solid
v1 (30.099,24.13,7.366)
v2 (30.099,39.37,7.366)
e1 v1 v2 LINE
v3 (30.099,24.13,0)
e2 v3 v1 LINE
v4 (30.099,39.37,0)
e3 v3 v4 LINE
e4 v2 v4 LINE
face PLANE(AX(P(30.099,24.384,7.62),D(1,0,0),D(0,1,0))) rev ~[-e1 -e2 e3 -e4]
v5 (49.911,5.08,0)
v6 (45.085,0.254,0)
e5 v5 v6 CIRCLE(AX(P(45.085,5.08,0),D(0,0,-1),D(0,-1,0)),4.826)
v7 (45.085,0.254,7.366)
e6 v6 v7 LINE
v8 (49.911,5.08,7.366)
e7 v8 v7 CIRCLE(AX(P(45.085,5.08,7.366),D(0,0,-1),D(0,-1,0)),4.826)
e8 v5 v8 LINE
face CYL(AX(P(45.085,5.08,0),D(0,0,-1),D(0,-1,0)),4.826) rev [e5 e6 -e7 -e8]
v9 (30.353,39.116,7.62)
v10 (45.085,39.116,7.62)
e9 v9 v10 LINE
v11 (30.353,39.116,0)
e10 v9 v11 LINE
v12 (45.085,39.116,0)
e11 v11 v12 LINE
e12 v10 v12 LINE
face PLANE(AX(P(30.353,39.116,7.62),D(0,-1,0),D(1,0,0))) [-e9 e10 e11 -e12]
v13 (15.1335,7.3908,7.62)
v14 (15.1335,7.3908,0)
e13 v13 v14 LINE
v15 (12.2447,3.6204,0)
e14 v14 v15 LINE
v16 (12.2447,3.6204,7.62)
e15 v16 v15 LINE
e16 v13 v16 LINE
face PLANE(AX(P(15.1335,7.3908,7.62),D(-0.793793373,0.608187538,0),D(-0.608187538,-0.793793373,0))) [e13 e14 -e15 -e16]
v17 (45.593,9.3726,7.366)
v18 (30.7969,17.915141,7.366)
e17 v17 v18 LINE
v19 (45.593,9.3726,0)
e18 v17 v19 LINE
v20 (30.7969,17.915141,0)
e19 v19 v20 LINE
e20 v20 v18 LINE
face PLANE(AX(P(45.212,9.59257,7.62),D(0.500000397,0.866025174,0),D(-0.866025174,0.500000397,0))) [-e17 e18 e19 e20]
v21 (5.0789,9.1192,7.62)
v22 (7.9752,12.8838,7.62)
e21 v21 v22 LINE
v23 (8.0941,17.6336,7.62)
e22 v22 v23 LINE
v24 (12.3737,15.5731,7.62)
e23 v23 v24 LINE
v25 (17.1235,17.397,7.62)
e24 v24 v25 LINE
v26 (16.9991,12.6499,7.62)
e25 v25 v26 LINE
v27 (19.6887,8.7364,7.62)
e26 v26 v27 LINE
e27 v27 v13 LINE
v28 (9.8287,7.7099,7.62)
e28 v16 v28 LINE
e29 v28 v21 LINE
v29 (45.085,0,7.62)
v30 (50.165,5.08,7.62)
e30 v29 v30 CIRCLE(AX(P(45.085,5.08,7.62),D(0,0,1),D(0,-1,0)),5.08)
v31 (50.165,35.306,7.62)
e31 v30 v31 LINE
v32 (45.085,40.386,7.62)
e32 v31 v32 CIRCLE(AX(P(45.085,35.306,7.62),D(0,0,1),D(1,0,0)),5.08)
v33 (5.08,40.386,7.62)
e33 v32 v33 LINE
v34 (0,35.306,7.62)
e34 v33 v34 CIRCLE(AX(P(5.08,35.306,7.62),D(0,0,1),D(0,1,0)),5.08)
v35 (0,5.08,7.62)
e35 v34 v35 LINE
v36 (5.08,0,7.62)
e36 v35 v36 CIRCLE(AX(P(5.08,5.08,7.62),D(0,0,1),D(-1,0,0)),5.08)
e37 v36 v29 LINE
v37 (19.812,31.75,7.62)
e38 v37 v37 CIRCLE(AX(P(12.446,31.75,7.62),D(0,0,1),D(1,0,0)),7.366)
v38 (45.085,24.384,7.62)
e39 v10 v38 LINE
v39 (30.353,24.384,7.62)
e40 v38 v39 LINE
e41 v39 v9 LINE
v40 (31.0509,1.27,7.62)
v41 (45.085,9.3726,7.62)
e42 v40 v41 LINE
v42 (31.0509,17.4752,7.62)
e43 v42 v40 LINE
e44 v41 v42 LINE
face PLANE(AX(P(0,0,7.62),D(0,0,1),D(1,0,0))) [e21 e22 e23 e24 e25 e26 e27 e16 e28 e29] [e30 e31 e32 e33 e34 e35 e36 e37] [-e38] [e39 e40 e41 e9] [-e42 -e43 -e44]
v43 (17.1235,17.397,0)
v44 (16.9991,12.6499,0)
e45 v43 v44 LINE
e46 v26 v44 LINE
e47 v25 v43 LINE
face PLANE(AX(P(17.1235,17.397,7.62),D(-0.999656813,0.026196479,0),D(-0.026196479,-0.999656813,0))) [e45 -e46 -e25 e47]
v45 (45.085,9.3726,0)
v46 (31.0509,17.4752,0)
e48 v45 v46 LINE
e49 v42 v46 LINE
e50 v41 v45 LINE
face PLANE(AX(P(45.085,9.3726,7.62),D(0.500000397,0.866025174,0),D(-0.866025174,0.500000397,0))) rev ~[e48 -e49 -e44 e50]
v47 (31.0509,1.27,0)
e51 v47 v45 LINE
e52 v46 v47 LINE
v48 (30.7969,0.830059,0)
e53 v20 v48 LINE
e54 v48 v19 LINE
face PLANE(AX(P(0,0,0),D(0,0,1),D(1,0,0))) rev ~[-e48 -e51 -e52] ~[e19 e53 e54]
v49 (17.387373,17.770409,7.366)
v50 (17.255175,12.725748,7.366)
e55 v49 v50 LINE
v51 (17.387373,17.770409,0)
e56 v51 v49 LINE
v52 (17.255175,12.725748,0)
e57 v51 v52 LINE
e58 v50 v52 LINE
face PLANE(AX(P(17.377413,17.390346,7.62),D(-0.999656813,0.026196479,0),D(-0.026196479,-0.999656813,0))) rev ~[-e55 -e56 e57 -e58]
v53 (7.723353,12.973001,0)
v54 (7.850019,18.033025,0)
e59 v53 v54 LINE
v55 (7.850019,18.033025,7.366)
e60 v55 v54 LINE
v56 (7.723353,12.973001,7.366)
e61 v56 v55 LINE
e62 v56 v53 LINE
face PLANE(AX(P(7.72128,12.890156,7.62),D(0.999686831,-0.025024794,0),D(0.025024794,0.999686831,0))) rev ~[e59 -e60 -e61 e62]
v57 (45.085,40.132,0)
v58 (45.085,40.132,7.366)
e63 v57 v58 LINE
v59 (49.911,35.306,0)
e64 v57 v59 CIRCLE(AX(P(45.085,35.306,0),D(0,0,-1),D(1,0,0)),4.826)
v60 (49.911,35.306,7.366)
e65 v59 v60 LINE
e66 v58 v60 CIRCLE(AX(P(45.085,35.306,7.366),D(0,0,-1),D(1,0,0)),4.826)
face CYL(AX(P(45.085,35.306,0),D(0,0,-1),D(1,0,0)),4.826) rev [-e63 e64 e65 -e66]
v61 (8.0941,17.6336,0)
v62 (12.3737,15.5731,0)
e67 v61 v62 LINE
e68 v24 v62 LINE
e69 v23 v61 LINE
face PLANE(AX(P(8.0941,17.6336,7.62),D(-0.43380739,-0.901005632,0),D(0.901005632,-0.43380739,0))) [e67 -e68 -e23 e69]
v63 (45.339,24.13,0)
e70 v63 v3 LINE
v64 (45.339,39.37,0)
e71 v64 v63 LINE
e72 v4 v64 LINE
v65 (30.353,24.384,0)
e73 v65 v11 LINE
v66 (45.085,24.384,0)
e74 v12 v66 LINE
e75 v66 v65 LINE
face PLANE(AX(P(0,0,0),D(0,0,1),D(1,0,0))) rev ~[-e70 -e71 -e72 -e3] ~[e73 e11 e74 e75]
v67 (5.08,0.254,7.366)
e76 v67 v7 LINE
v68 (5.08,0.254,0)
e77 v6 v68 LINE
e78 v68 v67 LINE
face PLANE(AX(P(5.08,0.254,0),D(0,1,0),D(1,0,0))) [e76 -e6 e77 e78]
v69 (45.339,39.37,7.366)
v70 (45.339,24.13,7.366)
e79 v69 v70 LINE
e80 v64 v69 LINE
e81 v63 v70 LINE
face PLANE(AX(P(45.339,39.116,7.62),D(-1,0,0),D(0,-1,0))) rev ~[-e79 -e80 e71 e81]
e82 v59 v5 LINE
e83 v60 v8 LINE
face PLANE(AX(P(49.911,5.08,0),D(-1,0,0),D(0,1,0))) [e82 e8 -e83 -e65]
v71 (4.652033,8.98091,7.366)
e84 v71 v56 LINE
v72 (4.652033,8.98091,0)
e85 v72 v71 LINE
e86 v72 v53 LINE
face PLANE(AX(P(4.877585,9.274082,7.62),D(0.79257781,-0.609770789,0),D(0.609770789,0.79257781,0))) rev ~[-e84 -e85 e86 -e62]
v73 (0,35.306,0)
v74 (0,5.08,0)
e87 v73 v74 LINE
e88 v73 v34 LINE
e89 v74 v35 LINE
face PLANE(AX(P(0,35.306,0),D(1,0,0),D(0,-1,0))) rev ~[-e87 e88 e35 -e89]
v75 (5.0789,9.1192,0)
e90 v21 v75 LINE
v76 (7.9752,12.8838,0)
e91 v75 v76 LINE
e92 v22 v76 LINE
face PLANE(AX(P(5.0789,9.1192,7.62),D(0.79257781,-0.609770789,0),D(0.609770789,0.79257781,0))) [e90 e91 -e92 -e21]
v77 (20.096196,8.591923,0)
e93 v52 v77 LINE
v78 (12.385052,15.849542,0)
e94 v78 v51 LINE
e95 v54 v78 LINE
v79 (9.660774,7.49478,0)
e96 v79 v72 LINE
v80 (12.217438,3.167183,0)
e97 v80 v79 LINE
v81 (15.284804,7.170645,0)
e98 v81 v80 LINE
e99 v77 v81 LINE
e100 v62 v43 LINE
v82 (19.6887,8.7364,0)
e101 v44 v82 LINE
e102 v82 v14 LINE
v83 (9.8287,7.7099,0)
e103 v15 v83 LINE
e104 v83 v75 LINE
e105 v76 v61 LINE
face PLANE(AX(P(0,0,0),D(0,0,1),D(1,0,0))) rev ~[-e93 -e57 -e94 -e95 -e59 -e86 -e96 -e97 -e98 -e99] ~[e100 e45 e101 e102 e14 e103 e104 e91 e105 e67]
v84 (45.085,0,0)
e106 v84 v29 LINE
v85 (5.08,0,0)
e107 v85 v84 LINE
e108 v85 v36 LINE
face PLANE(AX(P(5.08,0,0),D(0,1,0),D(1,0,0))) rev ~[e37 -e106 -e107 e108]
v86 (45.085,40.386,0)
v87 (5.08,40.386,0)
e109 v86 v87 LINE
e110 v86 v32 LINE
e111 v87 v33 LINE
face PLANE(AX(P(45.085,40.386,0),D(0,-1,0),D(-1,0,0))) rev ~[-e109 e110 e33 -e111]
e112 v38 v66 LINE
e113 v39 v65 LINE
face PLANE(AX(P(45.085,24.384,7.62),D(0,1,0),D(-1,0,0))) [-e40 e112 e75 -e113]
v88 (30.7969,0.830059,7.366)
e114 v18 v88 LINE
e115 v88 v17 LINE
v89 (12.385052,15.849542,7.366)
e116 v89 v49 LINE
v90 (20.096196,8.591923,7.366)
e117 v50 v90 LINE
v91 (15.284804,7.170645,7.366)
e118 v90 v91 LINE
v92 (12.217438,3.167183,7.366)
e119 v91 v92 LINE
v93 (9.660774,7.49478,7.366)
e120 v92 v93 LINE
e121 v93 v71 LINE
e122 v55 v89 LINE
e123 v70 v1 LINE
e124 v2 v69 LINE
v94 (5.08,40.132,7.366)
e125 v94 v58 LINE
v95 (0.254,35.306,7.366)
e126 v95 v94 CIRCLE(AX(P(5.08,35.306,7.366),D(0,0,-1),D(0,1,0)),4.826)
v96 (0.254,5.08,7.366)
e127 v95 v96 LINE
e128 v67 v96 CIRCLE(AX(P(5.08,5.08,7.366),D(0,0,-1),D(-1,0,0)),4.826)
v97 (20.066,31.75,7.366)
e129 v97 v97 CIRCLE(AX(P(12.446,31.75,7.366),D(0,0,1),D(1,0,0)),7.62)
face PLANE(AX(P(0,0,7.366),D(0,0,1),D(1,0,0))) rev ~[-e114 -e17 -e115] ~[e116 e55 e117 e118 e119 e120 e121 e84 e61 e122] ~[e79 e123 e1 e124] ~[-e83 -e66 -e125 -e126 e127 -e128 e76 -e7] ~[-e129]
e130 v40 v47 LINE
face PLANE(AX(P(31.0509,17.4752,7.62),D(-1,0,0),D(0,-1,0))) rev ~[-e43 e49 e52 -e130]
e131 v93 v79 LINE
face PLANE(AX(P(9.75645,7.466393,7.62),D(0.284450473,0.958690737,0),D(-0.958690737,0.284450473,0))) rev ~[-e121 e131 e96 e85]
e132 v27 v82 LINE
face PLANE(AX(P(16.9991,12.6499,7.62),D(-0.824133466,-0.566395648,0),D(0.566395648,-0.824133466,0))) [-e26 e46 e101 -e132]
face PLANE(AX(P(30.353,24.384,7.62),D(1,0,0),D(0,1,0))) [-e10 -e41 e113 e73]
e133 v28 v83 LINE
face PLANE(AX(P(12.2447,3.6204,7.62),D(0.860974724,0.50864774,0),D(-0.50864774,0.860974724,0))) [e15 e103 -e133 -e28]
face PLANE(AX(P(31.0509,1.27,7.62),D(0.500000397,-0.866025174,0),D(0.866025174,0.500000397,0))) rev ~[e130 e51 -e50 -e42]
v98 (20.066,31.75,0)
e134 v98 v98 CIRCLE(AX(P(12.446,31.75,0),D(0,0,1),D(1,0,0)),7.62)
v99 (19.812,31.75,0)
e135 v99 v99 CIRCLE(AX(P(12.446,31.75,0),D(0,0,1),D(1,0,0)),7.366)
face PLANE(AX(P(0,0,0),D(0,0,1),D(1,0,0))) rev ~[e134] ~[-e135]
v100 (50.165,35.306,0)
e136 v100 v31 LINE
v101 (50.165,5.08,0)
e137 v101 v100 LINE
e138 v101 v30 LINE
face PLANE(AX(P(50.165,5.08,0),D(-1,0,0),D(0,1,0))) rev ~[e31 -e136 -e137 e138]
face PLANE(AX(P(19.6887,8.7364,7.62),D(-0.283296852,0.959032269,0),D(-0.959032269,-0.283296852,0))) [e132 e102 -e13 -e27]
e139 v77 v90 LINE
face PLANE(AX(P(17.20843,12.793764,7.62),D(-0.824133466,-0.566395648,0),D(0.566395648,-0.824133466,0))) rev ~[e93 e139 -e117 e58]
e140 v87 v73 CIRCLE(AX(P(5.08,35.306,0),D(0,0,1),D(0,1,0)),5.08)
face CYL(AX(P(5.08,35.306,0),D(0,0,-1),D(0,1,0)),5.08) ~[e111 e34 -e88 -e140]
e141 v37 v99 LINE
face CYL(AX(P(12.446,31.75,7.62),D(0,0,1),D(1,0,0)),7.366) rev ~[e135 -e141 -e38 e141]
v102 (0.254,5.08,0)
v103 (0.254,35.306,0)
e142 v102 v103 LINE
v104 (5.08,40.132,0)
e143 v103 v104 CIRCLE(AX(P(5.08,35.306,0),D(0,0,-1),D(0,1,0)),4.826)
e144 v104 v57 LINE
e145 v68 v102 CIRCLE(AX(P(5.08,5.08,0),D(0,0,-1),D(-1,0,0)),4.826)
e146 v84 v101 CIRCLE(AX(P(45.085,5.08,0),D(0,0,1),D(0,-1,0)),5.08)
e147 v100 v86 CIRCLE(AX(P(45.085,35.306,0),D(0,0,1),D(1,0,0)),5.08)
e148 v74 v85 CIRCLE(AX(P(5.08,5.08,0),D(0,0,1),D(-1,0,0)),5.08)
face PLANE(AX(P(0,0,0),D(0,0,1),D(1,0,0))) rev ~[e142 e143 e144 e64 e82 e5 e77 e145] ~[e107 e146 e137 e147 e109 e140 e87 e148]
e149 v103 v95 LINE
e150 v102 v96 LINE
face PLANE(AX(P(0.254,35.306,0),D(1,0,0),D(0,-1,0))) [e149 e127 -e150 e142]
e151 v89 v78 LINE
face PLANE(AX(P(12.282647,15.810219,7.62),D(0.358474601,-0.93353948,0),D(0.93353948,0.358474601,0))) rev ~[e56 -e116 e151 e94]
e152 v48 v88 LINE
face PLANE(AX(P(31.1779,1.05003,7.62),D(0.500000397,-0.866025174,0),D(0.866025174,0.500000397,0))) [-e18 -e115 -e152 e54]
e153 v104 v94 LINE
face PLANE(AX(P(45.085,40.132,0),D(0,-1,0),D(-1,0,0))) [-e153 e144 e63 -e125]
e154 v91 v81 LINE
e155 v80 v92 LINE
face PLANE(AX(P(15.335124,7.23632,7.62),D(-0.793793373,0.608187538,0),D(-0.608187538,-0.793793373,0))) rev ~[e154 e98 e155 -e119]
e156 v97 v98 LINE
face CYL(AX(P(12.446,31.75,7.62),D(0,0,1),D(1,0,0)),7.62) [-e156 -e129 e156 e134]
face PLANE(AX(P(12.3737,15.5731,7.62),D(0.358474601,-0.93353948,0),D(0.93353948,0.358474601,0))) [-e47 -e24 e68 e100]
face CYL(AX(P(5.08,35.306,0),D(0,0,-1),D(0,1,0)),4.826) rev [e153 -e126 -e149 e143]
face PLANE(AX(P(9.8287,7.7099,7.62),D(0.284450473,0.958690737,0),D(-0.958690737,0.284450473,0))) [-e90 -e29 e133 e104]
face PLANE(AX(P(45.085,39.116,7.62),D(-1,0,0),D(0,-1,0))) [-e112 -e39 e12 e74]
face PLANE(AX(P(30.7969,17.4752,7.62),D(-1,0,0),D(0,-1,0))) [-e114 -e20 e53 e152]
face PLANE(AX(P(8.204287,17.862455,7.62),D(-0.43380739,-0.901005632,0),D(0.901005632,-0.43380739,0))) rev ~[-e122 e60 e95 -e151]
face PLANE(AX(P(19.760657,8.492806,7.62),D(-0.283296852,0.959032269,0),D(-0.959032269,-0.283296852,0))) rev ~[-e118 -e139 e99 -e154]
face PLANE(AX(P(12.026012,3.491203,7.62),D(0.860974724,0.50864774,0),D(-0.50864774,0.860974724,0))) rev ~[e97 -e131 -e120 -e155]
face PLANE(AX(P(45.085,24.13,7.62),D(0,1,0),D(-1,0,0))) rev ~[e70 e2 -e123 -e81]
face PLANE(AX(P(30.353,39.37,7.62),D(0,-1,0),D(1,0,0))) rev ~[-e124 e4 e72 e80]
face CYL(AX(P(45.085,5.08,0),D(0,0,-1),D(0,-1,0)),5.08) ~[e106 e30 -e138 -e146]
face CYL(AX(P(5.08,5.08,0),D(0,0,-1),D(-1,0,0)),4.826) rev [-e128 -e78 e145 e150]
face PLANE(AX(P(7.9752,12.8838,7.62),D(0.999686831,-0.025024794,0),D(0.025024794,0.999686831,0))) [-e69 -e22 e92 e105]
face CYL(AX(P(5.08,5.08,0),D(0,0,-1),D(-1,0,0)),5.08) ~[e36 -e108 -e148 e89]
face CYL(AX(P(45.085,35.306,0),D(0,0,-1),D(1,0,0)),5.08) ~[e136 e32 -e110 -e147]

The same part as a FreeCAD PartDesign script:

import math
import FreeCAD as App
import Part
import Sketcher
Q = App.Units.Quantity


def faces_at(feature, points):
    """Names of the faces that lie closest to the given points."""
    faces = feature.Shape.Faces
    near = lambda p: min(range(len(faces)), key=lambda i: faces[i].distToShape(Part.Vertex(*p))[0])
    return sorted({f"Face{near(p) + 1}" for p in points})

doc = App.newDocument("Part")
body = doc.addObject("PartDesign::Body", "Body")

# Sketch on XY plane
sketch1 = body.newObject("Sketcher::SketchObject", "Sketch")
sketch1.AttachmentSupport = (doc.getObject("XY_Plane"), [""])
sketch1.MapMode = "FlatFace"
sketch1.addGeometry([
    Part.ArcOfCircle(Part.Circle(App.Vector(5, 5, 0), App.Vector(0, 0, 1), 5), math.radians(180), math.radians(270)),  # 0
    Part.LineSegment(App.Vector(5, 0, 0), App.Vector(45, 0, 0)),  # 1
    Part.ArcOfCircle(Part.Circle(App.Vector(45, 5, 0), App.Vector(0, 0, 1), 5), math.radians(-90), math.radians(0)),  # 2
    Part.LineSegment(App.Vector(50, 5, 0), App.Vector(50, 35, 0)),  # 3
    Part.ArcOfCircle(Part.Circle(App.Vector(45, 35, 0), App.Vector(0, 0, 1), 5), math.radians(0), math.radians(90)),  # 4
    Part.LineSegment(App.Vector(45, 40, 0), App.Vector(5, 40, 0)),  # 5
    Part.ArcOfCircle(Part.Circle(App.Vector(5, 35, 0), App.Vector(0, 0, 1), 5), math.radians(90), math.radians(180)),  # 6
    Part.LineSegment(App.Vector(0, 35, 0), App.Vector(0, 5, 0)),  # 7
], False)
sketch1.addConstraint([
    Sketcher.Constraint("Tangent", 0, 2, 1, 1),
    Sketcher.Constraint("Tangent", 1, 2, 2, 1),
    Sketcher.Constraint("Tangent", 2, 2, 3, 1),
    Sketcher.Constraint("Tangent", 3, 2, 4, 1),
    Sketcher.Constraint("Tangent", 4, 2, 5, 1),
    Sketcher.Constraint("Tangent", 5, 2, 6, 1),
    Sketcher.Constraint("Tangent", 6, 2, 7, 1),
    Sketcher.Constraint("Tangent", 7, 2, 0, 1),
    Sketcher.Constraint("Horizontal", 1),
    Sketcher.Constraint("Vertical", 3),
    Sketcher.Constraint("Horizontal", 5),
    Sketcher.Constraint("Vertical", 7),
    Sketcher.Constraint("Equal", 0, 2),
    Sketcher.Constraint("Equal", 2, 4),
    Sketcher.Constraint("Equal", 4, 6),
    Sketcher.Constraint("PointOnObject", 0, 2, -1),
    Sketcher.Constraint("PointOnObject", 6, 2, -2),
    Sketcher.Constraint("Radius", 0, Q("0.2 in")),
    Sketcher.Constraint("DistanceY", -1, 1, 4, 2, Q("1.59 in")),
    Sketcher.Constraint("DistanceX", -1, 1, 2, 2, Q("1.975 in")),
])
pad1 = body.newObject("PartDesign::Pad", "Pad")
pad1.Profile = sketch1
pad1.Length = Q("0.3 in")

# Sketch on XY plane
sketch2 = body.newObject("Sketcher::SketchObject", "Sketch001")
sketch2.AttachmentSupport = (doc.getObject("XY_Plane"), [""])
sketch2.MapMode = "FlatFace"
sketch2.AttachmentOffset = App.Placement(App.Vector(0, 0, 0.3 * 25.4), App.Rotation())
sketch2.addGeometry([
    Part.Circle(App.Vector(12.4, 31.8, 0), App.Vector(0, 0, 1), 7.4),  # 0
    Part.LineSegment(App.Vector(45.1, 39.1, 0), App.Vector(30.4, 39.1, 0)),  # 1
    Part.LineSegment(App.Vector(30.4, 39.1, 0), App.Vector(30.4, 24.4, 0)),  # 2
    Part.LineSegment(App.Vector(30.4, 24.4, 0), App.Vector(45.1, 24.4, 0)),  # 3
    Part.LineSegment(App.Vector(45.1, 24.4, 0), App.Vector(45.1, 39.1, 0)),  # 4
    Part.LineSegment(App.Vector(45.1, 9.4, 0), App.Vector(31.1, 17.5, 0)),  # 5
    Part.LineSegment(App.Vector(31.1, 17.5, 0), App.Vector(31.1, 1.3, 0)),  # 6
    Part.LineSegment(App.Vector(31.1, 1.3, 0), App.Vector(45.1, 9.4, 0)),  # 7
    Part.LineSegment(App.Vector(12.4, 15.6, 0), App.Vector(8.1, 17.6, 0)),  # 8
    Part.LineSegment(App.Vector(8.1, 17.6, 0), App.Vector(8, 12.9, 0)),  # 9
    Part.LineSegment(App.Vector(8, 12.9, 0), App.Vector(5.1, 9.1, 0)),  # 10
    Part.LineSegment(App.Vector(5.1, 9.1, 0), App.Vector(9.8, 7.7, 0)),  # 11
    Part.LineSegment(App.Vector(9.8, 7.7, 0), App.Vector(12.2, 3.6, 0)),  # 12
    Part.LineSegment(App.Vector(12.2, 3.6, 0), App.Vector(15.1, 7.4, 0)),  # 13
    Part.LineSegment(App.Vector(15.1, 7.4, 0), App.Vector(19.7, 8.7, 0)),  # 14
    Part.LineSegment(App.Vector(19.7, 8.7, 0), App.Vector(17, 12.6, 0)),  # 15
    Part.LineSegment(App.Vector(17, 12.6, 0), App.Vector(17.1, 17.4, 0)),  # 16
    Part.LineSegment(App.Vector(17.1, 17.4, 0), App.Vector(12.4, 15.6, 0)),  # 17
], False)
sketch2.addConstraint([
    Sketcher.Constraint("Coincident", 1, 2, 2, 1),
    Sketcher.Constraint("Coincident", 2, 2, 3, 1),
    Sketcher.Constraint("Coincident", 3, 2, 4, 1),
    Sketcher.Constraint("Coincident", 4, 2, 1, 1),
    Sketcher.Constraint("Coincident", 5, 2, 6, 1),
    Sketcher.Constraint("Coincident", 6, 2, 7, 1),
    Sketcher.Constraint("Coincident", 7, 2, 5, 1),
    Sketcher.Constraint("Coincident", 8, 2, 9, 1),
    Sketcher.Constraint("Coincident", 9, 2, 10, 1),
    Sketcher.Constraint("Coincident", 10, 2, 11, 1),
    Sketcher.Constraint("Coincident", 11, 2, 12, 1),
    Sketcher.Constraint("Coincident", 12, 2, 13, 1),
    Sketcher.Constraint("Coincident", 13, 2, 14, 1),
    Sketcher.Constraint("Coincident", 14, 2, 15, 1),
    Sketcher.Constraint("Coincident", 15, 2, 16, 1),
    Sketcher.Constraint("Coincident", 16, 2, 17, 1),
    Sketcher.Constraint("Coincident", 17, 2, 8, 1),
    Sketcher.Constraint("Horizontal", 1),
    Sketcher.Constraint("Vertical", 2),
    Sketcher.Constraint("Horizontal", 3),
    Sketcher.Constraint("Vertical", 4),
    Sketcher.Constraint("Vertical", 6),
    Sketcher.Constraint("Vertical", 4, 2, 7, 2),
    Sketcher.Constraint("Equal", 3, 2),
    Sketcher.Constraint("Equal", 5, 7),
    Sketcher.Constraint("Equal", 8, 10),
    Sketcher.Constraint("Equal", 10, 12),
    Sketcher.Constraint("Equal", 12, 13),
    Sketcher.Constraint("Equal", 13, 14),
    Sketcher.Constraint("Equal", 15, 16),
    Sketcher.Constraint("Diameter", 0, Q("0.58 in")),
    Sketcher.Constraint("DistanceX", 1, 2, 1, 1, Q("0.58 in")),
    Sketcher.Constraint("DistanceY", 6, 2, 6, 1, Q("0.638 in")),
    Sketcher.Constraint("DistanceY", -1, 1, 6, 2, Q("0.05 in")),
    Sketcher.Constraint("Distance", 5, Q("0.638 in")),
    Sketcher.Constraint("Distance", 8, Q("0.187 in")),
    Sketcher.Constraint("DistanceY", 9, 2, 8, 2, Q("0.187 in")),
    Sketcher.Constraint("DistanceX", 10, 2, 11, 2, Q("0.187 in")),
    Sketcher.Constraint("DistanceX", 17, 2, 16, 2, Q("0.187 in")),
    Sketcher.Constraint("Angle", 15, Q("124.4993 deg")),
    Sketcher.Constraint("Angle", 16, Q("88.499 deg")),
    Sketcher.Constraint("DistanceY", 6, 2, 0, 3, Q("1.2 in")),
    Sketcher.Constraint("DistanceY", 15, 2, 16, 2, Q("0.1869 in")),
    Sketcher.Constraint("DistanceX", -1, 1, 0, 3, Q("0.49 in")),
    Sketcher.Constraint("DistanceY", -1, 1, 1, 2, Q("1.54 in")),
    Sketcher.Constraint("Angle", 8, Q("154.2906 deg")),
    Sketcher.Constraint("DistanceX", -1, 1, 1, 2, Q("1.195 in")),
    Sketcher.Constraint("DistanceY", 12, 2, 11, 2, Q("0.161 in")),
    Sketcher.Constraint("DistanceX", -1, 1, 13, 2, Q("0.5958 in")),
    Sketcher.Constraint("DistanceX", 8, 2, 5, 2, Q("0.9038 in")),
    Sketcher.Constraint("DistanceX", 9, 2, 5, 2, Q("0.9085 in")),
    Sketcher.Constraint("DistanceX", 10, 2, 8, 2, Q("0.1187 in")),
    Sketcher.Constraint("DistanceY", 11, 2, 9, 2, Q("0.2037 in")),
    Sketcher.Constraint("DistanceY", -1, 1, 8, 2, 17.6336),
])
pocket1 = body.newObject("PartDesign::Pocket", "Pocket")
pocket1.Profile = sketch2
pocket1.Length = Q("0.3 in")
doc.recompute()

thickness = body.newObject("PartDesign::Thickness", "Thickness")
thickness.Base = (pocket1, faces_at(pocket1, [(40.407, 17.077, 0)]))
thickness.Value = Q("0.01 in")
thickness.Reversed = True
thickness.Join = "Intersection"

doc.recompute()
